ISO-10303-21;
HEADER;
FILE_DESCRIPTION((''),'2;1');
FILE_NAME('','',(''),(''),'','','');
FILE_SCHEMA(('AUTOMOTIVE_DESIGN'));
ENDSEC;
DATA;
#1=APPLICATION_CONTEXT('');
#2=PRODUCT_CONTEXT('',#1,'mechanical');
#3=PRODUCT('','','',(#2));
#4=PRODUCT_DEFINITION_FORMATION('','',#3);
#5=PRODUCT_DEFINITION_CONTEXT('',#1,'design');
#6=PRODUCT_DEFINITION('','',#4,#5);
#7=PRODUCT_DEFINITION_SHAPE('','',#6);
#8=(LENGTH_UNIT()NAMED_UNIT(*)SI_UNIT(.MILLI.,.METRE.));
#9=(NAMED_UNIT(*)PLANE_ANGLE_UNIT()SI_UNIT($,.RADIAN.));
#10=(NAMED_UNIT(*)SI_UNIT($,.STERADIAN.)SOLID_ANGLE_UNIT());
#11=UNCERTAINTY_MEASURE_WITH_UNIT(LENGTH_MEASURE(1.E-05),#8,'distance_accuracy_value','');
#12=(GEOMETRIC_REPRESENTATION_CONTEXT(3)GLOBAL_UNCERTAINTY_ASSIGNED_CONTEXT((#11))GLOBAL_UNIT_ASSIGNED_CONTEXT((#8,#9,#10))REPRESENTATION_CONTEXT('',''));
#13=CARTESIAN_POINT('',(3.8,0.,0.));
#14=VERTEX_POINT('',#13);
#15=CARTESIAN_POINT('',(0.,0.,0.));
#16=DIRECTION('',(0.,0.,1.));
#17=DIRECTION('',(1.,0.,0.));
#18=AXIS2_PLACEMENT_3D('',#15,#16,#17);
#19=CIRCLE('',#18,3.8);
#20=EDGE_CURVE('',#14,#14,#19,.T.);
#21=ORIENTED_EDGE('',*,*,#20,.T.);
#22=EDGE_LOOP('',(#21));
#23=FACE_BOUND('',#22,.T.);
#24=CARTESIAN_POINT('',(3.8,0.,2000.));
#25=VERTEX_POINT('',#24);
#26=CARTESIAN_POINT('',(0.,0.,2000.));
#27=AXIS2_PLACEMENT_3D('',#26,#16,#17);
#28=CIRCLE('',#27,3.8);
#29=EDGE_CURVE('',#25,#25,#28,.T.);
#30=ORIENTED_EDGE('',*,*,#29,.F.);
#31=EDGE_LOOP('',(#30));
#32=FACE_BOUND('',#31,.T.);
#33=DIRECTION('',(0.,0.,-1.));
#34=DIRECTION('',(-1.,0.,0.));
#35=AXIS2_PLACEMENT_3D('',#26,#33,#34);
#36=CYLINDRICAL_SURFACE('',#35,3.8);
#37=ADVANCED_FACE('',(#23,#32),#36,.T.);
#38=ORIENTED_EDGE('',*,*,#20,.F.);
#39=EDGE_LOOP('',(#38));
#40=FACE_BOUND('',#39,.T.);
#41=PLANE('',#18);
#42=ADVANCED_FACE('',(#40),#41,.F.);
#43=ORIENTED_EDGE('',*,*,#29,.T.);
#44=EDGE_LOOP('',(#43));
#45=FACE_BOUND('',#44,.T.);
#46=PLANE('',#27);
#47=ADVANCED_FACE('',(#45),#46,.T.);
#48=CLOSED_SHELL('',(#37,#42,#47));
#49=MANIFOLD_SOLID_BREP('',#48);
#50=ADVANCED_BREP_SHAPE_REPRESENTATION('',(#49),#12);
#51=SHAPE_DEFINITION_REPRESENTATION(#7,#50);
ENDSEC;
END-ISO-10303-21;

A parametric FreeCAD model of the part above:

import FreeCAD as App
import Part
import Sketcher
from FreeCAD import Vector

doc = App.newDocument("Part")
params = doc.addObject("Spreadsheet::Sheet", "Params")
for row, (alias, value) in enumerate([
    ("sketch1_diameter", "7.6 mm"),
    ("pad1_length", "2000 mm"),
], start=1):
    params.set(f"A{row}", alias)
    params.set(f"B{row}", "=" + value)
    params.setAlias(f"B{row}", alias)

body = doc.addObject("PartDesign::Body", "Body")

sketch1 = body.newObject("Sketcher::SketchObject", "Sketch")
sketch1.AttachmentSupport = (doc.getObject("XY_Plane"), [""])
sketch1.MapMode = "FlatFace"
sketch1.addGeometry(Part.Circle(Vector(0, 0, 0), Vector(0, 0, 1), 3.8), False)
sketch1.addConstraint([
    Sketcher.Constraint("Coincident", 0, 3, -1, 1),
    Sketcher.Constraint("Diameter", 0, 7.6),
])
sketch1.setExpression("Constraints[1]", "Params.sketch1_diameter")
pad1 = body.newObject("PartDesign::Pad", "Pad")
pad1.Profile = sketch1
pad1.setExpression("Length", "Params.pad1_length")

doc.recompute()
